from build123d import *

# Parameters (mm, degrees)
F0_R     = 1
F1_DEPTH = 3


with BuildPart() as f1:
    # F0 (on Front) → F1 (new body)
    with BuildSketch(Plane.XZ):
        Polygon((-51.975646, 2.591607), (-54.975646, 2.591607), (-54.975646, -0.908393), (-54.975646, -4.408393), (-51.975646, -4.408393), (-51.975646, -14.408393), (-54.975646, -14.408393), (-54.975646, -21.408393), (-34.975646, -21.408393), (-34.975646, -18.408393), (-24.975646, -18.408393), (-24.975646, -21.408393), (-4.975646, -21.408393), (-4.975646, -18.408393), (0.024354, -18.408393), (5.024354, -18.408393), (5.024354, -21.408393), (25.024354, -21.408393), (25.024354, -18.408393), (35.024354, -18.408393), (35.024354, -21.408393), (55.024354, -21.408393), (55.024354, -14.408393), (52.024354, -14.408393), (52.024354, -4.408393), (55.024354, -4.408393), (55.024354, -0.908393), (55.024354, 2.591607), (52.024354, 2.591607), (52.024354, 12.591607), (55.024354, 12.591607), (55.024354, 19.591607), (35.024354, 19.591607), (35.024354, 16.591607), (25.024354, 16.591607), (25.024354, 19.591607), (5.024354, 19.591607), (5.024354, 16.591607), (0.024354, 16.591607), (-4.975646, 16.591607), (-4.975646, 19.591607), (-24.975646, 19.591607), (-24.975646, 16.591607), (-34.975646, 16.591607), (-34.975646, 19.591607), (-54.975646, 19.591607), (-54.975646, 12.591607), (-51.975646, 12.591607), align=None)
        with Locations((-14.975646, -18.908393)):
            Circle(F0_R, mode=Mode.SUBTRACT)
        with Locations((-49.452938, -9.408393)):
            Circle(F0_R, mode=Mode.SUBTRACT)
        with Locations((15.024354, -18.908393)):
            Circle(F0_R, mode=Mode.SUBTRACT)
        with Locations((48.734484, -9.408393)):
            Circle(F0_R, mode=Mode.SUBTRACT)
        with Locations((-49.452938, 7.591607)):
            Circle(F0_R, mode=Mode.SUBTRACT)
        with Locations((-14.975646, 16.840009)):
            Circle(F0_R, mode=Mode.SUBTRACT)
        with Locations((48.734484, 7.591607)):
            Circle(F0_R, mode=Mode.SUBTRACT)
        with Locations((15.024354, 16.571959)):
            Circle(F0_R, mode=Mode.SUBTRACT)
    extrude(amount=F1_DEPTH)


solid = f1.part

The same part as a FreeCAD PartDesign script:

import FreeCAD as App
import Part
import Sketcher

doc = App.newDocument("Part")
body = doc.addObject("PartDesign::Body", "Body")

sketch1 = doc.addObject("Sketcher::SketchObject", "Sketch")
body.addObject(sketch1)
sketch1.AttachmentSupport = (doc.XZ_Plane, [""])
sketch1.MapMode = "FlatFace"
sketch1.addGeometry([
    Part.LineSegment(App.Vector(-52, 2.6, 0), App.Vector(-55, 2.6, 0)),
    Part.LineSegment(App.Vector(-55, 2.6, 0), App.Vector(-55, -4.4, 0)),
    Part.LineSegment(App.Vector(-55, -4.4, 0), App.Vector(-52, -4.4, 0)),
    Part.LineSegment(App.Vector(-52, -4.4, 0), App.Vector(-52, -14.4, 0)),
    Part.LineSegment(App.Vector(-52, -14.4, 0), App.Vector(-55, -14.4, 0)),
    Part.LineSegment(App.Vector(-55, -14.4, 0), App.Vector(-55, -21.4, 0)),
    Part.LineSegment(App.Vector(-55, -21.4, 0), App.Vector(-35, -21.4, 0)),
    Part.LineSegment(App.Vector(-35, -21.4, 0), App.Vector(-35, -18.4, 0)),
    Part.LineSegment(App.Vector(-35, -18.4, 0), App.Vector(-25, -18.4, 0)),
    Part.LineSegment(App.Vector(-25, -18.4, 0), App.Vector(-25, -21.4, 0)),
    Part.LineSegment(App.Vector(-25, -21.4, 0), App.Vector(-5, -21.4, 0)),
    Part.LineSegment(App.Vector(-5, -21.4, 0), App.Vector(-5, -18.4, 0)),
    Part.LineSegment(App.Vector(-5, -18.4, 0), App.Vector(5, -18.4, 0)),
    Part.LineSegment(App.Vector(5, -18.4, 0), App.Vector(5, -21.4, 0)),
    Part.LineSegment(App.Vector(5, -21.4, 0), App.Vector(25, -21.4, 0)),
    Part.LineSegment(App.Vector(25, -21.4, 0), App.Vector(25, -18.4, 0)),
    Part.LineSegment(App.Vector(25, -18.4, 0), App.Vector(35, -18.4, 0)),
    Part.LineSegment(App.Vector(35, -18.4, 0), App.Vector(35, -21.4, 0)),
    Part.LineSegment(App.Vector(35, -21.4, 0), App.Vector(55, -21.4, 0)),
    Part.LineSegment(App.Vector(55, -21.4, 0), App.Vector(55, -14.4, 0)),
    Part.LineSegment(App.Vector(55, -14.4, 0), App.Vector(52, -14.4, 0)),
    Part.LineSegment(App.Vector(52, -14.4, 0), App.Vector(52, -4.4, 0)),
    Part.LineSegment(App.Vector(52, -4.4, 0), App.Vector(55, -4.4, 0)),
    Part.LineSegment(App.Vector(55, -4.4, 0), App.Vector(55, 2.6, 0)),
    Part.LineSegment(App.Vector(55, 2.6, 0), App.Vector(52, 2.6, 0)),
    Part.LineSegment(App.Vector(52, 2.6, 0), App.Vector(52, 12.6, 0)),
    Part.LineSegment(App.Vector(52, 12.6, 0), App.Vector(55, 12.6, 0)),
    Part.LineSegment(App.Vector(55, 12.6, 0), App.Vector(55, 19.6, 0)),
    Part.LineSegment(App.Vector(55, 19.6, 0), App.Vector(35, 19.6, 0)),
    Part.LineSegment(App.Vector(35, 19.6, 0), App.Vector(35, 16.6, 0)),
    Part.LineSegment(App.Vector(35, 16.6, 0), App.Vector(25, 16.6, 0)),
    Part.LineSegment(App.Vector(25, 16.6, 0), App.Vector(25, 19.6, 0)),
    Part.LineSegment(App.Vector(25, 19.6, 0), App.Vector(5, 19.6, 0)),
    Part.LineSegment(App.Vector(5, 19.6, 0), App.Vector(5, 16.6, 0)),
    Part.LineSegment(App.Vector(5, 16.6, 0), App.Vector(-5, 16.6, 0)),
    Part.LineSegment(App.Vector(-5, 16.6, 0), App.Vector(-5, 19.6, 0)),
    Part.LineSegment(App.Vector(-5, 19.6, 0), App.Vector(-25, 19.6, 0)),
    Part.LineSegment(App.Vector(-25, 19.6, 0), App.Vector(-25, 16.6, 0)),
    Part.LineSegment(App.Vector(-25, 16.6, 0), App.Vector(-35, 16.6, 0)),
    Part.LineSegment(App.Vector(-35, 16.6, 0), App.Vector(-35, 19.6, 0)),
    Part.LineSegment(App.Vector(-35, 19.6, 0), App.Vector(-55, 19.6, 0)),
    Part.LineSegment(App.Vector(-55, 19.6, 0), App.Vector(-55, 12.6, 0)),
    Part.LineSegment(App.Vector(-55, 12.6, 0), App.Vector(-52, 12.6, 0)),
    Part.LineSegment(App.Vector(-52, 12.6, 0), App.Vector(-52, 2.6, 0)),
    Part.Circle(App.Vector(-15, -18.9, 0), App.Vector(0, 0, 1), 1),
    Part.Circle(App.Vector(-49.5, -9.4, 0), App.Vector(0, 0, 1), 1),
    Part.Circle(App.Vector(15, -18.9, 0), App.Vector(0, 0, 1), 1),
    Part.Circle(App.Vector(48.7, -9.4, 0), App.Vector(0, 0, 1), 1),
    Part.Circle(App.Vector(-49.5, 7.6, 0), App.Vector(0, 0, 1), 1),
    Part.Circle(App.Vector(-15, 16.8, 0), App.Vector(0, 0, 1), 1),
    Part.Circle(App.Vector(48.7, 7.6, 0), App.Vector(0, 0, 1), 1),
    Part.Circle(App.Vector(15, 16.6, 0), App.Vector(0, 0, 1), 1),
], False)
sketch1.addConstraint([
    Sketcher.Constraint("Coincident", 0, 2, 1, 1),
    Sketcher.Constraint("Coincident", 1, 2, 2, 1),
    Sketcher.Constraint("Coincident", 2, 2, 3, 1),
    Sketcher.Constraint("Coincident", 3, 2, 4, 1),
    Sketcher.Constraint("Coincident", 4, 2, 5, 1),
    Sketcher.Constraint("Coincident", 5, 2, 6, 1),
    Sketcher.Constraint("Coincident", 6, 2, 7, 1),
    Sketcher.Constraint("Coincident", 7, 2, 8, 1),
    Sketcher.Constraint("Coincident", 8, 2, 9, 1),
    Sketcher.Constraint("Coincident", 9, 2, 10, 1),
    Sketcher.Constraint("Coincident", 10, 2, 11, 1),
    Sketcher.Constraint("Coincident", 11, 2, 12, 1),
    Sketcher.Constraint("Coincident", 12, 2, 13, 1),
    Sketcher.Constraint("Coincident", 13, 2, 14, 1),
    Sketcher.Constraint("Coincident", 14, 2, 15, 1),
    Sketcher.Constraint("Coincident", 15, 2, 16, 1),
    Sketcher.Constraint("Coincident", 16, 2, 17, 1),
    Sketcher.Constraint("Coincident", 17, 2, 18, 1),
    Sketcher.Constraint("Coincident", 18, 2, 19, 1),
    Sketcher.Constraint("Coincident", 19, 2, 20, 1),
    Sketcher.Constraint("Coincident", 20, 2, 21, 1),
    Sketcher.Constraint("Coincident", 21, 2, 22, 1),
    Sketcher.Constraint("Coincident", 22, 2, 23, 1),
    Sketcher.Constraint("Coincident", 23, 2, 24, 1),
    Sketcher.Constraint("Coincident", 24, 2, 25, 1),
    Sketcher.Constraint("Coincident", 25, 2, 26, 1),
    Sketcher.Constraint("Coincident", 26, 2, 27, 1),
    Sketcher.Constraint("Coincident", 27, 2, 28, 1),
    Sketcher.Constraint("Coincident", 28, 2, 29, 1),
    Sketcher.Constraint("Coincident", 29, 2, 30, 1),
    Sketcher.Constraint("Coincident", 30, 2, 31, 1),
    Sketcher.Constraint("Coincident", 31, 2, 32, 1),
    Sketcher.Constraint("Coincident", 32, 2, 33, 1),
    Sketcher.Constraint("Coincident", 33, 2, 34, 1),
    Sketcher.Constraint("Coincident", 34, 2, 35, 1),
    Sketcher.Constraint("Coincident", 35, 2, 36, 1),
    Sketcher.Constraint("Coincident", 36, 2, 37, 1),
    Sketcher.Constraint("Coincident", 37, 2, 38, 1),
    Sketcher.Constraint("Coincident", 38, 2, 39, 1),
    Sketcher.Constraint("Coincident", 39, 2, 40, 1),
    Sketcher.Constraint("Coincident", 40, 2, 41, 1),
    Sketcher.Constraint("Coincident", 41, 2, 42, 1),
    Sketcher.Constraint("Coincident", 42, 2, 43, 1),
    Sketcher.Constraint("Coincident", 43, 2, 0, 1),
    Sketcher.Constraint("Horizontal", 0),
    Sketcher.Constraint("Vertical", 1),
    Sketcher.Constraint("Horizontal", 2),
    Sketcher.Constraint("Vertical", 3),
    Sketcher.Constraint("Horizontal", 4),
    Sketcher.Constraint("Vertical", 5),
    Sketcher.Constraint("Horizontal", 6),
    Sketcher.Constraint("Vertical", 7),
    Sketcher.Constraint("Horizontal", 8),
    Sketcher.Constraint("Vertical", 9),
    Sketcher.Constraint("Horizontal", 10),
    Sketcher.Constraint("Vertical", 11),
    Sketcher.Constraint("Horizontal", 12),
    Sketcher.Constraint("Vertical", 13),
    Sketcher.Constraint("Horizontal", 14),
    Sketcher.Constraint("Vertical", 15),
    Sketcher.Constraint("Horizontal", 16),
    Sketcher.Constraint("Vertical", 17),
    Sketcher.Constraint("Horizontal", 18),
    Sketcher.Constraint("Vertical", 19),
    Sketcher.Constraint("Horizontal", 20),
    Sketcher.Constraint("Vertical", 21),
    Sketcher.Constraint("Horizontal", 22),
    Sketcher.Constraint("Vertical", 23),
    Sketcher.Constraint("Horizontal", 24),
    Sketcher.Constraint("Vertical", 25),
    Sketcher.Constraint("Horizontal", 26),
    Sketcher.Constraint("Vertical", 27),
    Sketcher.Constraint("Horizontal", 28),
    Sketcher.Constraint("Vertical", 29),
    Sketcher.Constraint("Horizontal", 30),
    Sketcher.Constraint("Vertical", 31),
    Sketcher.Constraint("Horizontal", 32),
    Sketcher.Constraint("Vertical", 33),
    Sketcher.Constraint("Horizontal", 34),
    Sketcher.Constraint("Vertical", 35),
    Sketcher.Constraint("Horizontal", 36),
    Sketcher.Constraint("Vertical", 37),
    Sketcher.Constraint("Horizontal", 38),
    Sketcher.Constraint("Vertical", 39),
    Sketcher.Constraint("Horizontal", 40),
    Sketcher.Constraint("Vertical", 41),
    Sketcher.Constraint("Horizontal", 42),
    Sketcher.Constraint("Vertical", 43),
    Sketcher.Constraint("Equal", 44, 45),
    Sketcher.Constraint("Equal", 45, 46),
    Sketcher.Constraint("Equal", 46, 47),
    Sketcher.Constraint("Equal", 47, 48),
    Sketcher.Constraint("Equal", 48, 49),
    Sketcher.Constraint("Equal", 49, 50),
    Sketcher.Constraint("Equal", 50, 51),
    Sketcher.Constraint("Horizontal", 44, 3, 46, 3),
    Sketcher.Constraint("Horizontal", 45, 3, 47, 3),
    Sketcher.Constraint("Horizontal", 48, 3, 50, 3),
    Sketcher.Constraint("Horizontal", 6, 2, 9, 2),
    Sketcher.Constraint("Horizontal", 8, 2, 11, 2),
    Sketcher.Constraint("Horizontal", 10, 2, 13, 2),
    Sketcher.Constraint("Horizontal", 12, 2, 15, 2),
    Sketcher.Constraint("Horizontal", 14, 2, 17, 2),
    Sketcher.Constraint("Horizontal", 4, 2, 19, 2),
    Sketcher.Constraint("Horizontal", 2, 2, 21, 2),
    Sketcher.Constraint("Horizontal", 0, 2, 23, 2),
    Sketcher.Constraint("Horizontal", 28, 2, 31, 2),
    Sketcher.Constraint("Horizontal", 30, 2, 33, 2),
    Sketcher.Constraint("Horizontal", 32, 2, 35, 2),
    Sketcher.Constraint("Horizontal", 34, 2, 37, 2),
    Sketcher.Constraint("Horizontal", 36, 2, 39, 2),
    Sketcher.Constraint("Horizontal", 26, 2, 41, 2),
    Sketcher.Constraint("Vertical", 45, 3, 48, 3),
    Sketcher.Constraint("Vertical", 44, 3, 49, 3),
    Sketcher.Constraint("Vertical", 47, 3, 50, 3),
    Sketcher.Constraint("Vertical", 46, 3, 51, 3),
    Sketcher.Constraint("Vertical", 1, 2, 4, 2),
    Sketcher.Constraint("Vertical", 19, 2, 22, 2),
    Sketcher.Constraint("Vertical", 21, 2, 24, 2),
    Sketcher.Constraint("Vertical", 23, 2, 26, 2),
    Sketcher.Constraint("Vertical", 17, 2, 28, 2),
    Sketcher.Constraint("Vertical", 15, 2, 30, 2),
    Sketcher.Constraint("Vertical", 13, 2, 32, 2),
    Sketcher.Constraint("Vertical", 11, 2, 34, 2),
    Sketcher.Constraint("Vertical", 9, 2, 36, 2),
    Sketcher.Constraint("Vertical", 7, 2, 38, 2),
    Sketcher.Constraint("Vertical", 5, 2, 40, 2),
    Sketcher.Constraint("Vertical", 3, 2, 42, 2),
    Sketcher.Constraint("Equal", 6, 10),
    Sketcher.Constraint("Equal", 8, 12),
    Sketcher.Constraint("Equal", 10, 14),
    Sketcher.Constraint("Equal", 12, 16),
    Sketcher.Constraint("Equal", 14, 18),
    Sketcher.Constraint("Equal", 4, 20),
    Sketcher.Constraint("Equal", 38, 3),
    Sketcher.Constraint("Equal", 1, 5),
    Sketcher.Constraint("Equal", 42, 7),
    Sketcher.Constraint("Equal", 21, 25),
    Sketcher.Constraint("Equal", 23, 27),
    Sketcher.Constraint("Equal", 17, 29),
    Sketcher.Constraint("Diameter", 44, 2.0),
    Sketcher.Constraint("DistanceX", 0, 2, 0, 1, 3.0),
    Sketcher.Constraint("DistanceX", 6, 1, 6, 2, 20.0),
    Sketcher.Constraint("DistanceX", 8, 1, 8, 2, 10.0),
    Sketcher.Constraint("DistanceY", 1, 2, 1, 1, 7.0),
    Sketcher.Constraint("DistanceX", 44, 3, 46, 3, 30.0),
    Sketcher.Constraint("DistanceY", 45, 3, 48, 3, 17.0),
    Sketcher.Constraint("DistanceY", 0, 2, 48, 3, 5.0),
    Sketcher.Constraint("DistanceX", 0, 2, 49, 3, 40.0),
    Sketcher.Constraint("DistanceY", 44, 3, 45, 3, 9.5),
    Sketcher.Constraint("DistanceY", 48, 3, 49, 3, 9.248402),
    Sketcher.Constraint("DistanceX", 45, 3, -1, 1, 49.452938),
    Sketcher.Constraint("DistanceY", -1, 1, 49, 3, 16.840009),
    Sketcher.Constraint("DistanceY", -1, 1, 51, 3, 16.571959),
    Sketcher.Constraint("DistanceX", 46, 3, 47, 3, 33.71013),
    Sketcher.Constraint("DistanceX", 45, 3, 47, 3, 98.187422),
])
pad1 = doc.addObject("PartDesign::Pad", "Pad")
body.addObject(pad1)
pad1.Profile = sketch1
pad1.Length = 3

doc.recompute()
